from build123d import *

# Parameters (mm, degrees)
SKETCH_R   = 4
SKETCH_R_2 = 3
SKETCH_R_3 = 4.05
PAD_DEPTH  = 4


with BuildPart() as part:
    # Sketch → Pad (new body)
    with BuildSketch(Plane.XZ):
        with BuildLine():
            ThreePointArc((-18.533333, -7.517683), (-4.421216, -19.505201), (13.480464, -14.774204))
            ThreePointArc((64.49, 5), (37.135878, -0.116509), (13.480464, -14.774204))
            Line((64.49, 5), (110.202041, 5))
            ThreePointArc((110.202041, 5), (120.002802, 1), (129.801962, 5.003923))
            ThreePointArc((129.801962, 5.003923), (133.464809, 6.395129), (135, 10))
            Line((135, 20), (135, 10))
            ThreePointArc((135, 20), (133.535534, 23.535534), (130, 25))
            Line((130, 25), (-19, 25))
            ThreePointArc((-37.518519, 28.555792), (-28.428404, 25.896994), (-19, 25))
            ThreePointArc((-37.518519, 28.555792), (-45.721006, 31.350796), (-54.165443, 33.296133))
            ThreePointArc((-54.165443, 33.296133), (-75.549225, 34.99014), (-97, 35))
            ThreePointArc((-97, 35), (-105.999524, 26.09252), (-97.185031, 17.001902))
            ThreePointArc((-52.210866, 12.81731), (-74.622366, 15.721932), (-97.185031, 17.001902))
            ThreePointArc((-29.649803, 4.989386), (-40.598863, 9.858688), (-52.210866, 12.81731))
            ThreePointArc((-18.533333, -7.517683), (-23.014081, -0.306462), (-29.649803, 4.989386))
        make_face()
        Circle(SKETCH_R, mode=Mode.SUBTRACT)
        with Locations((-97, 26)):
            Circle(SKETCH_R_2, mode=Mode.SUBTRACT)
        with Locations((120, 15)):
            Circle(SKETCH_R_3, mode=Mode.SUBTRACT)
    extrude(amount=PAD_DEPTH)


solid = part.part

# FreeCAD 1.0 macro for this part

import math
import FreeCAD as App
import Part
import Sketcher
from FreeCAD import Vector

doc = App.newDocument("Part")
body = doc.addObject("PartDesign::Body", "Body")

sketch1 = body.newObject("Sketcher::SketchObject", "Sketch")
sketch1.AttachmentSupport = (doc.getObject("XZ_Plane"), [""])
sketch1.MapMode = "FlatFace"
sketch1.addGeometry([
    Part.ArcOfCircle(Part.Circle(Vector(0, -0.000001, 0), Vector(0, 0, 1), 20), math.radians(-157.921033), math.radians(-47.621657)),
    Part.ArcOfCircle(Part.Circle(Vector(64.489999, -70.679198, 0), Vector(0, 0, 1), 75.679198), math.radians(89.999999), math.radians(132.378342)),
    Part.LineSegment(Vector(64.49, 5, 0), Vector(110.202041, 5, 0)),
    Part.ArcOfCircle(Part.Circle(Vector(120, 15, 0), Vector(0, 0, 1), 14), math.radians(-134.41531), math.radians(-45.561754)),
    Part.ArcOfCircle(Part.Circle(Vector(129.999998, 10.000001, 0), Vector(0, 0, 1), 5.000002), math.radians(-92.269924), math.radians(-0.000013)),
    Part.LineSegment(Vector(135, 10, 0), Vector(135, 20, 0)),
    Part.ArcOfCircle(Part.Circle(Vector(130, 20, 0), Vector(0, 0, 1), 5), math.radians(-0.000004), math.radians(90.000004)),
    Part.LineSegment(Vector(130, 25, 0), Vector(-19, 25, 0)),
    Part.ArcOfCircle(Part.Circle(Vector(-19, 75.000001, 0), Vector(0, 0, 1), 50.000001), math.radians(-111.738461), math.radians(-90)),
    Part.ArcOfCircle(Part.Circle(Vector(-69.000025, -50.399452, 0), Vector(0, 0, 1), 85.000092), math.radians(68.261546), math.radians(79.949023)),
    Part.ArcOfCircle(Part.Circle(Vector(-86.400002, -237.794179, 0), Vector(0, 0, 1), 273.000044), math.radians(83.218965), math.radians(92.22523)),
    Part.ArcOfCircle(Part.Circle(Vector(-96.999999, 26, 0), Vector(0, 0, 1), 9), math.radians(90.000004), math.radians(268.82197)),
    Part.ArcOfCircle(Part.Circle(Vector(-103.619979, -295.931729, 0), Vector(0, 0, 1), 312.999786), math.radians(80.546536), math.radians(88.821976)),
    Part.ArcOfCircle(Part.Circle(Vector(-63.872372, -57.218493, 0), Vector(0, 0, 1), 71.000031), math.radians(61.183383), math.radians(80.546536)),
    Part.ArcOfCircle(Part.Circle(Vector(-41.700002, -16.914788, 0), Vector(0, 0, 1), 25.000002), math.radians(22.078969), math.radians(61.183376)),
    Part.Circle(Vector(0, 0, 0), Vector(0, 0, 1), 4),
    Part.Circle(Vector(-97, 26, 0), Vector(0, 0, 1), 3),
    Part.Circle(Vector(120, 15, 0), Vector(0, 0, 1), 4.05),
], False)
sketch1.addConstraint([
    Sketcher.Constraint("Coincident", 0, 2, 1, 2),
    Sketcher.Constraint("Coincident", 1, 1, 2, 1),
    Sketcher.Constraint("Coincident", 2, 2, 3, 1),
    Sketcher.Constraint("Coincident", 3, 2, 4, 1),
    Sketcher.Constraint("Coincident", 4, 2, 5, 1),
    Sketcher.Constraint("Coincident", 5, 2, 6, 1),
    Sketcher.Constraint("Coincident", 6, 2, 7, 1),
    Sketcher.Constraint("Coincident", 7, 2, 8, 2),
    Sketcher.Constraint("Coincident", 8, 1, 9, 1),
    Sketcher.Constraint("Coincident", 9, 2, 10, 1),
    Sketcher.Constraint("Coincident", 10, 2, 11, 1),
    Sketcher.Constraint("Coincident", 11, 2, 12, 2),
    Sketcher.Constraint("Coincident", 12, 1, 13, 2),
    Sketcher.Constraint("Coincident", 13, 1, 14, 2),
    Sketcher.Constraint("Coincident", 14, 1, 0, 1),
    Sketcher.Constraint("Horizontal", 2),
    Sketcher.Constraint("Vertical", 5),
    Sketcher.Constraint("Horizontal", 7),
    Sketcher.Constraint("Coincident", 0, 3, -1, 1),
    Sketcher.Constraint("Coincident", 15, 3, -1, 1),
    Sketcher.Constraint("Coincident", 16, 3, 11, 3),
    Sketcher.Constraint("Coincident", 17, 3, 3, 3),
    Sketcher.Constraint("Diameter", 15, 8.0),
    Sketcher.Constraint("Diameter", 16, 6.0),
    Sketcher.Constraint("Radius", 0, 20.0),
    Sketcher.Constraint("Radius", 3, 14.0),
    Sketcher.Constraint("Radius", 4, 5.000002),
    Sketcher.Constraint("Radius", 6, 5.0),
    Sketcher.Constraint("Radius", 8, 50.000001),
    Sketcher.Constraint("Radius", 11, 9.0),
    Sketcher.Constraint("Diameter", 17, 8.1),
    Sketcher.Constraint("DistanceX", 7, 2, 7, 1, 149.0),
    Sketcher.Constraint("DistanceY", 5, 1, 5, 2, 10.0),
    Sketcher.Constraint("DistanceX", -1, 1, 3, 3, 120.0),
    Sketcher.Constraint("DistanceY", -1, 1, 3, 3, 15.0),
    Sketcher.Constraint("DistanceX", -1, 1, 4, 3, 129.999998),
    Sketcher.Constraint("DistanceY", -1, 1, 4, 3, 10.000001),
    Sketcher.Constraint("DistanceY", -1, 1, 6, 3, 20.0),
    Sketcher.Constraint("DistanceX", 8, 3, -1, 1, 19.0),
    Sketcher.Constraint("DistanceX", 11, 3, -1, 1, 96.999999),
    Sketcher.Constraint("DistanceY", -1, 1, 11, 3, 26.0),
    Sketcher.Constraint("DistanceY", -1, 1, 1, 1, 5.0),
    Sketcher.Constraint("DistanceY", -1, 1, 4, 2, 10.0),
    Sketcher.Constraint("DistanceX", -1, 1, 6, 2, 130.0),
    Sketcher.Constraint("DistanceX", 10, 2, -1, 1, 97.0),
    Sketcher.Constraint("DistanceX", 14, 3, -1, 1, 41.700002),
    Sketcher.Constraint("DistanceX", -1, 1, 1, 3, 64.489999),
    Sketcher.Constraint("DistanceX", -1, 1, 1, 1, 64.49),
    Sketcher.Constraint("Radius", 13, 71.000031),
    Sketcher.Constraint("DistanceX", 10, 3, 1, 3, 150.890001),
    Sketcher.Constraint("Radius", 9, 85.000092),
    Sketcher.Constraint("Radius", 10, 273.000044),
    Sketcher.Constraint("Radius", 12, 312.999786),
    Sketcher.Constraint("Radius", 14, 25.000002),
    Sketcher.Constraint("DistanceX", 14, 3, 13, 1, 12.050199),
    Sketcher.Constraint("DistanceY", 9, 3, -1, 1, 50.399452),
    Sketcher.Constraint("DistanceX", 12, 3, -1, 1, 103.619979),
    Sketcher.Constraint("DistanceX", 8, 1, -1, 1, 37.518519),
    Sketcher.Constraint("DistanceX", 11, 2, -1, 1, 97.185031),
    Sketcher.Constraint("DistanceY", -1, 1, 12, 1, 12.81731),
    Sketcher.Constraint("DistanceY", 13, 3, 0, 2, 42.444289),
    Sketcher.Constraint("DistanceX", 13, 1, 14, 1, 11.11647),
])
pad1 = body.newObject("PartDesign::Pad", "Pad")
pad1.Profile = sketch1
pad1.Length = 4

doc.recompute()
